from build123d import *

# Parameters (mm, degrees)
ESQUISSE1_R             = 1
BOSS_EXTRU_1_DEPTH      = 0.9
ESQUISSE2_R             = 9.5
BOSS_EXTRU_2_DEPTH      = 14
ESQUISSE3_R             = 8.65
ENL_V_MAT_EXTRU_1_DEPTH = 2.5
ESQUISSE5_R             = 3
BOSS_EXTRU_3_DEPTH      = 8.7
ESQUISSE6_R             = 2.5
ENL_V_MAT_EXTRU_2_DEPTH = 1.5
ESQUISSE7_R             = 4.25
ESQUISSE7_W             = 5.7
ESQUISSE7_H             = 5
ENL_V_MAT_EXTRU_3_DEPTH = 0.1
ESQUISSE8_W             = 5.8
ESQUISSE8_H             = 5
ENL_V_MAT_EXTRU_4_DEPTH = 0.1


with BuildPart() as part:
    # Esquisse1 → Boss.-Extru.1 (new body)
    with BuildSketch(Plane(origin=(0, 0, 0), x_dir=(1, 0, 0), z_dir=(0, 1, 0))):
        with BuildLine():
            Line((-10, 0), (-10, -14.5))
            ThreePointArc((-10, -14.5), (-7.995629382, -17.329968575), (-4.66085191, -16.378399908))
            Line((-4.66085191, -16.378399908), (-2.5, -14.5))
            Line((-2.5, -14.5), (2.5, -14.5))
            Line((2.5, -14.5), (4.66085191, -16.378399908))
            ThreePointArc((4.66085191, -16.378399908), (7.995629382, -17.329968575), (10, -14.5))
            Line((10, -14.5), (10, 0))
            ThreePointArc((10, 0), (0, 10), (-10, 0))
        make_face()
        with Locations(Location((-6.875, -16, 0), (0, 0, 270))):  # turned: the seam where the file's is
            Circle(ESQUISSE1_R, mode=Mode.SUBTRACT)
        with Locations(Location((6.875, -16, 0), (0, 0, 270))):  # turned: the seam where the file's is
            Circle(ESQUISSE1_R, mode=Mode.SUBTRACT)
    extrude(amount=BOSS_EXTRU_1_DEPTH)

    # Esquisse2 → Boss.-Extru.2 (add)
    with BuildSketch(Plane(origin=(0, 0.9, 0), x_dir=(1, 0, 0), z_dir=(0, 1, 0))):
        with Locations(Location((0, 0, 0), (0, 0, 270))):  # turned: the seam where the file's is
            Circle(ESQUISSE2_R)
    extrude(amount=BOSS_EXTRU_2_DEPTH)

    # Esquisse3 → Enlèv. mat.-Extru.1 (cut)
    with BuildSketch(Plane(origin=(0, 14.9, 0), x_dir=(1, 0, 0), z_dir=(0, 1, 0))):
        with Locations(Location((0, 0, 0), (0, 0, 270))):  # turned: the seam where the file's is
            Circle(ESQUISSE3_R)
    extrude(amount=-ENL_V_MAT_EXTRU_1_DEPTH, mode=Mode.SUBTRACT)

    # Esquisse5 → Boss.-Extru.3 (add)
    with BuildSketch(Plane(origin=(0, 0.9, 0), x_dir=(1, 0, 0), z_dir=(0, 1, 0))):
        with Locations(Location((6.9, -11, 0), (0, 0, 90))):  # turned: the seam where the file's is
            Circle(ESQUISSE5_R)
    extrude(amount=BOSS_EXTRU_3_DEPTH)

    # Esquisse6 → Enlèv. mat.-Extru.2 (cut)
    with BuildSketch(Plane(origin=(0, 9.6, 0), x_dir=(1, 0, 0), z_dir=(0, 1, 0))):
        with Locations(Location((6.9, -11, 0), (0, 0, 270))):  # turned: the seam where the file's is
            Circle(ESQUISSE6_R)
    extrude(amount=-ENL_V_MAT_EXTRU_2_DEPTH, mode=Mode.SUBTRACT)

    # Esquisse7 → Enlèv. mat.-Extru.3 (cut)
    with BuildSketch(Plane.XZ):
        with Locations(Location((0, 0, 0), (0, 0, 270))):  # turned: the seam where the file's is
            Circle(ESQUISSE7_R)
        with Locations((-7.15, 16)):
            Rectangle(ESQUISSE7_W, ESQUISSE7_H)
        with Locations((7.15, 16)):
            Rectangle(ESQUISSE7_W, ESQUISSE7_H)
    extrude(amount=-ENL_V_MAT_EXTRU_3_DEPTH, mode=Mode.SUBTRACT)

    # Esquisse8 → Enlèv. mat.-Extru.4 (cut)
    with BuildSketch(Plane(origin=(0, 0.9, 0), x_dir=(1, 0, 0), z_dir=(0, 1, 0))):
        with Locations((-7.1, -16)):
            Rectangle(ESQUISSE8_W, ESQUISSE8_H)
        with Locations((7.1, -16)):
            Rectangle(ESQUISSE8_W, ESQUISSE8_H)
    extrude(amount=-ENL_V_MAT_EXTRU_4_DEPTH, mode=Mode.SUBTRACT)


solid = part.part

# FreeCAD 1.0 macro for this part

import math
import FreeCAD as App
import Part
import Sketcher
from FreeCAD import Vector
Q = App.Units.Quantity


def add_polygon(sketch, points):
    """Adds a closed chain of lines whose ends are joined by coincident constraints."""
    first, n = sketch.GeometryCount, len(points)
    for a, b in zip(points, points[1:] + points[:1]):
        sketch.addGeometry(Part.LineSegment(App.Vector(*a, 0), App.Vector(*b, 0)), False)
    for i in range(n):
        sketch.addConstraint(Sketcher.Constraint("Coincident", first + i, 2, first + (i + 1) % n, 1))

doc = App.newDocument("Part")
body = doc.addObject("PartDesign::Body", "Body")

# Sketch on XZ plane
sketch1 = body.newObject("Sketcher::SketchObject", "Sketch")
sketch1.AttachmentSupport = (doc.getObject("XZ_Plane"), [""])
sketch1.MapMode = "FlatFace"
sketch1.addGeometry(Part.LineSegment(Vector(-10, 0, 0), Vector(-10, 14.5, 0)), False)
sketch1.addGeometry(Part.ArcOfCircle(Part.Circle(Vector(-7, 14.5, 0), Vector(0, 0, 1), 3), math.radians(39), math.radians(180)), False)
sketch1.addGeometry(Part.LineSegment(Vector(-4.7, 16.4, 0), Vector(-2.5, 14.5, 0)), False)
sketch1.addGeometry(Part.LineSegment(Vector(-2.5, 14.5, 0), Vector(2.5, 14.5, 0)), False)
sketch1.addGeometry(Part.LineSegment(Vector(2.5, 14.5, 0), Vector(4.7, 16.4, 0)), False)
sketch1.addGeometry(Part.ArcOfCircle(Part.Circle(Vector(7, 14.5, 0), Vector(0, 0, 1), 3), math.radians(0), math.radians(141)), False)
sketch1.addGeometry(Part.LineSegment(Vector(10, 14.5, 0), Vector(10, 0, 0)), False)
sketch1.addGeometry(Part.ArcOfCircle(Part.Circle(Vector(0, 0, 0), Vector(0, 0, 1), 10), math.radians(180), math.radians(360)), False)
sketch1.addGeometry(Part.Circle(Vector(-6.9, 16, 0), Vector(0, 0, 1), 1), False)
sketch1.addGeometry(Part.Circle(Vector(6.9, 16, 0), Vector(0, 0, 1), 1), False)
sketch1.addConstraint(Sketcher.Constraint("Tangent", 0, 2, 1, 2))
sketch1.addConstraint(Sketcher.Constraint("Coincident", 1, 1, 2, 1))
sketch1.addConstraint(Sketcher.Constraint("Coincident", 2, 2, 3, 1))
sketch1.addConstraint(Sketcher.Constraint("Coincident", 3, 2, 4, 1))
sketch1.addConstraint(Sketcher.Constraint("Coincident", 4, 2, 5, 2))
sketch1.addConstraint(Sketcher.Constraint("Tangent", 5, 1, 6, 1))
sketch1.addConstraint(Sketcher.Constraint("Tangent", 6, 2, 7, 2))
sketch1.addConstraint(Sketcher.Constraint("Tangent", 7, 1, 0, 1))
sketch1.addConstraint(Sketcher.Constraint("Vertical", 0))
sketch1.addConstraint(Sketcher.Constraint("Horizontal", 3))
sketch1.addConstraint(Sketcher.Constraint("Vertical", 6))
sketch1.addConstraint(Sketcher.Constraint("Coincident", 7, 3, -1, 1))
sketch1.addConstraint(Sketcher.Constraint("Equal", 1, 5))
sketch1.addConstraint(Sketcher.Constraint("Equal", 8, 9))
sketch1.addConstraint(Sketcher.Constraint("Symmetric", 8, 3, 9, 3, -2))
sketch1.addConstraint(Sketcher.Constraint("Symmetric", 1, 1, 4, 2, -2))
sketch1.addConstraint(Sketcher.Constraint("Horizontal", 0, 2, 2, 2))
sketch1.addConstraint(Sketcher.Constraint("Equal", 2, 4))
sketch1.addConstraint(Sketcher.Constraint("Diameter", 8, Q("2 mm")))
sketch1.addConstraint(Sketcher.Constraint("Radius", 1, Q("3 mm")))
sketch1.addConstraint(Sketcher.Constraint("Radius", 7, Q("10 mm")))
sketch1.addConstraint(Sketcher.Constraint("DistanceX", 3, 1, 3, 2, Q("5 mm")))
sketch1.addConstraint(Sketcher.Constraint("Angle", 2, Q("-41 deg")))
sketch1.addConstraint(Sketcher.Constraint("DistanceY", 0, 1, 0, 2, Q("14.5 mm")))
sketch1.addConstraint(Sketcher.Constraint("DistanceY", -1, 1, 8, 3, Q("16 mm")))
sketch1.addConstraint(Sketcher.Constraint("DistanceX", 8, 3, 9, 3, Q("13.75 mm")))
pad1 = body.newObject("PartDesign::Pad", "Pad")
pad1.Profile = sketch1
pad1.Length = 0.9
pad1.Reversed = True

# Sketch on XZ plane
sketch2 = body.newObject("Sketcher::SketchObject", "Sketch001")
sketch2.AttachmentSupport = (doc.getObject("XZ_Plane"), [""])
sketch2.MapMode = "FlatFace"
sketch2.AttachmentOffset = App.Placement(Vector(0, 0, -0.9), App.Rotation())
sketch2.addGeometry(Part.Circle(Vector(0, 0, 0), Vector(0, 0, 1), 10), False)
sketch2.addConstraint(Sketcher.Constraint("Coincident", 0, 3, -1, 1))
sketch2.addConstraint(Sketcher.Constraint("Diameter", 0, Q("19 mm")))
pad2 = body.newObject("PartDesign::Pad", "Pad001")
pad2.Profile = sketch2
pad2.Length = 14
pad2.Reversed = True

# Sketch on XZ plane
sketch3 = body.newObject("Sketcher::SketchObject", "Sketch002")
sketch3.AttachmentSupport = (doc.getObject("XZ_Plane"), [""])
sketch3.MapMode = "FlatFace"
sketch3.AttachmentOffset = App.Placement(Vector(0, 0, -14.9), App.Rotation())
sketch3.addGeometry(Part.Circle(Vector(0, 0, 0), Vector(0, 0, 1), 9), False)
sketch3.addConstraint(Sketcher.Constraint("Coincident", 0, 3, -1, 1))
sketch3.addConstraint(Sketcher.Constraint("Diameter", 0, Q("17.3 mm")))
pocket1 = body.newObject("PartDesign::Pocket", "Pocket")
pocket1.Profile = sketch3
pocket1.Length = 2.5
pocket1.Reversed = True

# Sketch on XZ plane
sketch4 = body.newObject("Sketcher::SketchObject", "Sketch003")
sketch4.AttachmentSupport = (doc.getObject("XZ_Plane"), [""])
sketch4.MapMode = "FlatFace"
sketch4.AttachmentOffset = App.Placement(Vector(0, 0, -0.9), App.Rotation())
sketch4.addGeometry(Part.Circle(Vector(6.9, 11, 0), Vector(0, 0, 1), 3), False)
sketch4.addConstraint(Sketcher.Constraint("Diameter", 0, Q("6 mm")))
sketch4.addConstraint(Sketcher.Constraint("DistanceY", -1, 1, 0, 3, Q("11 mm")))
sketch4.addConstraint(Sketcher.Constraint("DistanceX", -1, 1, 0, 3, Q("6.9 mm")))
pad3 = body.newObject("PartDesign::Pad", "Pad002")
pad3.Profile = sketch4
pad3.Length = 8.7
pad3.Reversed = True

# Sketch on XZ plane
sketch5 = body.newObject("Sketcher::SketchObject", "Sketch004")
sketch5.AttachmentSupport = (doc.getObject("XZ_Plane"), [""])
sketch5.MapMode = "FlatFace"
sketch5.AttachmentOffset = App.Placement(Vector(0, 0, -9.6), App.Rotation())
sketch5.addGeometry(Part.Circle(Vector(6.9, 11, 0), Vector(0, 0, 1), 2.5), False)
sketch5.addConstraint(Sketcher.Constraint("Diameter", 0, Q("5 mm")))
sketch5.addConstraint(Sketcher.Constraint("DistanceY", -1, 1, 0, 3, Q("11 mm")))
sketch5.addConstraint(Sketcher.Constraint("DistanceX", -1, 1, 0, 3, Q("6.9 mm")))
pocket2 = body.newObject("PartDesign::Pocket", "Pocket001")
pocket2.Profile = sketch5
pocket2.Length = 1.5
pocket2.Reversed = True

# Sketch on XZ plane
sketch6 = body.newObject("Sketcher::SketchObject", "Sketch005")
sketch6.AttachmentSupport = (doc.getObject("XZ_Plane"), [""])
sketch6.MapMode = "FlatFace"
sketch6.addGeometry(Part.Circle(Vector(0, 0, 0), Vector(0, 0, 1), 4.2), False)  # 0
add_polygon(sketch6, [(-10, 18.5), (-10, 13.5), (-4.3, 13.5), (-4.3, 18.5)])  # lines 1-4
add_polygon(sketch6, [(4.3, 18.5), (4.3, 13.5), (10, 13.5), (10, 18.5)])  # lines 5-8
sketch6.addConstraint(Sketcher.Constraint("Vertical", 1))
sketch6.addConstraint(Sketcher.Constraint("Horizontal", 2))
sketch6.addConstraint(Sketcher.Constraint("Vertical", 3))
sketch6.addConstraint(Sketcher.Constraint("Horizontal", 4))
sketch6.addConstraint(Sketcher.Constraint("Vertical", 5))
sketch6.addConstraint(Sketcher.Constraint("Horizontal", 6))
sketch6.addConstraint(Sketcher.Constraint("Vertical", 7))
sketch6.addConstraint(Sketcher.Constraint("Horizontal", 8))
sketch6.addConstraint(Sketcher.Constraint("Coincident", 0, 3, -1, 1))
sketch6.addConstraint(Sketcher.Constraint("Symmetric", 2, 2, 5, 2, -2))
sketch6.addConstraint(Sketcher.Constraint("Symmetric", 4, 2, 7, 2, -2))
sketch6.addConstraint(Sketcher.Constraint("Diameter", 0, Q("8.5 mm")))
sketch6.addConstraint(Sketcher.Constraint("DistanceY", 1, 2, 1, 1, Q("5 mm")))
sketch6.addConstraint(Sketcher.Constraint("DistanceX", 2, 1, 2, 2, Q("5.7 mm")))
sketch6.addConstraint(Sketcher.Constraint("DistanceX", 1, 2, -1, 1, Q("10 mm")))
sketch6.addConstraint(Sketcher.Constraint("DistanceY", -1, 1, 1, 2, Q("13.5 mm")))
pocket3 = body.newObject("PartDesign::Pocket", "Pocket002")
pocket3.Profile = sketch6
pocket3.Length = 0.1

# Sketch on XZ plane
sketch7 = body.newObject("Sketcher::SketchObject", "Sketch006")
sketch7.AttachmentSupport = (doc.getObject("XZ_Plane"), [""])
sketch7.MapMode = "FlatFace"
sketch7.AttachmentOffset = App.Placement(Vector(0, 0, -0.9), App.Rotation())
add_polygon(sketch7, [(-10, 14), (-10, 18), (-4, 18), (-4, 14)])  # lines 0-3
add_polygon(sketch7, [(4, 14), (4, 18), (10, 18), (10, 14)])  # lines 4-7
sketch7.addConstraint(Sketcher.Constraint("Vertical", 0))
sketch7.addConstraint(Sketcher.Constraint("Horizontal", 1))
sketch7.addConstraint(Sketcher.Constraint("Vertical", 2))
sketch7.addConstraint(Sketcher.Constraint("Horizontal", 3))
sketch7.addConstraint(Sketcher.Constraint("Vertical", 4))
sketch7.addConstraint(Sketcher.Constraint("Horizontal", 5))
sketch7.addConstraint(Sketcher.Constraint("Vertical", 6))
sketch7.addConstraint(Sketcher.Constraint("Horizontal", 7))
sketch7.addConstraint(Sketcher.Constraint("Symmetric", 1, 2, 4, 2, -2))
sketch7.addConstraint(Sketcher.Constraint("Symmetric", 3, 2, 6, 2, -2))
sketch7.addConstraint(Sketcher.Constraint("DistanceY", 0, 1, 0, 2, Q("5 mm")))
sketch7.addConstraint(Sketcher.Constraint("DistanceX", 1, 1, 1, 2, Q("5.8 mm")))
sketch7.addConstraint(Sketcher.Constraint("DistanceX", 0, 2, -1, 1, Q("10 mm")))
sketch7.addConstraint(Sketcher.Constraint("DistanceY", -1, 1, 0, 2, Q("18.5 mm")))
pocket4 = body.newObject("PartDesign::Pocket", "Pocket003")
pocket4.Profile = sketch7
pocket4.Length = 0.1
pocket4.Reversed = True

doc.recompute()
